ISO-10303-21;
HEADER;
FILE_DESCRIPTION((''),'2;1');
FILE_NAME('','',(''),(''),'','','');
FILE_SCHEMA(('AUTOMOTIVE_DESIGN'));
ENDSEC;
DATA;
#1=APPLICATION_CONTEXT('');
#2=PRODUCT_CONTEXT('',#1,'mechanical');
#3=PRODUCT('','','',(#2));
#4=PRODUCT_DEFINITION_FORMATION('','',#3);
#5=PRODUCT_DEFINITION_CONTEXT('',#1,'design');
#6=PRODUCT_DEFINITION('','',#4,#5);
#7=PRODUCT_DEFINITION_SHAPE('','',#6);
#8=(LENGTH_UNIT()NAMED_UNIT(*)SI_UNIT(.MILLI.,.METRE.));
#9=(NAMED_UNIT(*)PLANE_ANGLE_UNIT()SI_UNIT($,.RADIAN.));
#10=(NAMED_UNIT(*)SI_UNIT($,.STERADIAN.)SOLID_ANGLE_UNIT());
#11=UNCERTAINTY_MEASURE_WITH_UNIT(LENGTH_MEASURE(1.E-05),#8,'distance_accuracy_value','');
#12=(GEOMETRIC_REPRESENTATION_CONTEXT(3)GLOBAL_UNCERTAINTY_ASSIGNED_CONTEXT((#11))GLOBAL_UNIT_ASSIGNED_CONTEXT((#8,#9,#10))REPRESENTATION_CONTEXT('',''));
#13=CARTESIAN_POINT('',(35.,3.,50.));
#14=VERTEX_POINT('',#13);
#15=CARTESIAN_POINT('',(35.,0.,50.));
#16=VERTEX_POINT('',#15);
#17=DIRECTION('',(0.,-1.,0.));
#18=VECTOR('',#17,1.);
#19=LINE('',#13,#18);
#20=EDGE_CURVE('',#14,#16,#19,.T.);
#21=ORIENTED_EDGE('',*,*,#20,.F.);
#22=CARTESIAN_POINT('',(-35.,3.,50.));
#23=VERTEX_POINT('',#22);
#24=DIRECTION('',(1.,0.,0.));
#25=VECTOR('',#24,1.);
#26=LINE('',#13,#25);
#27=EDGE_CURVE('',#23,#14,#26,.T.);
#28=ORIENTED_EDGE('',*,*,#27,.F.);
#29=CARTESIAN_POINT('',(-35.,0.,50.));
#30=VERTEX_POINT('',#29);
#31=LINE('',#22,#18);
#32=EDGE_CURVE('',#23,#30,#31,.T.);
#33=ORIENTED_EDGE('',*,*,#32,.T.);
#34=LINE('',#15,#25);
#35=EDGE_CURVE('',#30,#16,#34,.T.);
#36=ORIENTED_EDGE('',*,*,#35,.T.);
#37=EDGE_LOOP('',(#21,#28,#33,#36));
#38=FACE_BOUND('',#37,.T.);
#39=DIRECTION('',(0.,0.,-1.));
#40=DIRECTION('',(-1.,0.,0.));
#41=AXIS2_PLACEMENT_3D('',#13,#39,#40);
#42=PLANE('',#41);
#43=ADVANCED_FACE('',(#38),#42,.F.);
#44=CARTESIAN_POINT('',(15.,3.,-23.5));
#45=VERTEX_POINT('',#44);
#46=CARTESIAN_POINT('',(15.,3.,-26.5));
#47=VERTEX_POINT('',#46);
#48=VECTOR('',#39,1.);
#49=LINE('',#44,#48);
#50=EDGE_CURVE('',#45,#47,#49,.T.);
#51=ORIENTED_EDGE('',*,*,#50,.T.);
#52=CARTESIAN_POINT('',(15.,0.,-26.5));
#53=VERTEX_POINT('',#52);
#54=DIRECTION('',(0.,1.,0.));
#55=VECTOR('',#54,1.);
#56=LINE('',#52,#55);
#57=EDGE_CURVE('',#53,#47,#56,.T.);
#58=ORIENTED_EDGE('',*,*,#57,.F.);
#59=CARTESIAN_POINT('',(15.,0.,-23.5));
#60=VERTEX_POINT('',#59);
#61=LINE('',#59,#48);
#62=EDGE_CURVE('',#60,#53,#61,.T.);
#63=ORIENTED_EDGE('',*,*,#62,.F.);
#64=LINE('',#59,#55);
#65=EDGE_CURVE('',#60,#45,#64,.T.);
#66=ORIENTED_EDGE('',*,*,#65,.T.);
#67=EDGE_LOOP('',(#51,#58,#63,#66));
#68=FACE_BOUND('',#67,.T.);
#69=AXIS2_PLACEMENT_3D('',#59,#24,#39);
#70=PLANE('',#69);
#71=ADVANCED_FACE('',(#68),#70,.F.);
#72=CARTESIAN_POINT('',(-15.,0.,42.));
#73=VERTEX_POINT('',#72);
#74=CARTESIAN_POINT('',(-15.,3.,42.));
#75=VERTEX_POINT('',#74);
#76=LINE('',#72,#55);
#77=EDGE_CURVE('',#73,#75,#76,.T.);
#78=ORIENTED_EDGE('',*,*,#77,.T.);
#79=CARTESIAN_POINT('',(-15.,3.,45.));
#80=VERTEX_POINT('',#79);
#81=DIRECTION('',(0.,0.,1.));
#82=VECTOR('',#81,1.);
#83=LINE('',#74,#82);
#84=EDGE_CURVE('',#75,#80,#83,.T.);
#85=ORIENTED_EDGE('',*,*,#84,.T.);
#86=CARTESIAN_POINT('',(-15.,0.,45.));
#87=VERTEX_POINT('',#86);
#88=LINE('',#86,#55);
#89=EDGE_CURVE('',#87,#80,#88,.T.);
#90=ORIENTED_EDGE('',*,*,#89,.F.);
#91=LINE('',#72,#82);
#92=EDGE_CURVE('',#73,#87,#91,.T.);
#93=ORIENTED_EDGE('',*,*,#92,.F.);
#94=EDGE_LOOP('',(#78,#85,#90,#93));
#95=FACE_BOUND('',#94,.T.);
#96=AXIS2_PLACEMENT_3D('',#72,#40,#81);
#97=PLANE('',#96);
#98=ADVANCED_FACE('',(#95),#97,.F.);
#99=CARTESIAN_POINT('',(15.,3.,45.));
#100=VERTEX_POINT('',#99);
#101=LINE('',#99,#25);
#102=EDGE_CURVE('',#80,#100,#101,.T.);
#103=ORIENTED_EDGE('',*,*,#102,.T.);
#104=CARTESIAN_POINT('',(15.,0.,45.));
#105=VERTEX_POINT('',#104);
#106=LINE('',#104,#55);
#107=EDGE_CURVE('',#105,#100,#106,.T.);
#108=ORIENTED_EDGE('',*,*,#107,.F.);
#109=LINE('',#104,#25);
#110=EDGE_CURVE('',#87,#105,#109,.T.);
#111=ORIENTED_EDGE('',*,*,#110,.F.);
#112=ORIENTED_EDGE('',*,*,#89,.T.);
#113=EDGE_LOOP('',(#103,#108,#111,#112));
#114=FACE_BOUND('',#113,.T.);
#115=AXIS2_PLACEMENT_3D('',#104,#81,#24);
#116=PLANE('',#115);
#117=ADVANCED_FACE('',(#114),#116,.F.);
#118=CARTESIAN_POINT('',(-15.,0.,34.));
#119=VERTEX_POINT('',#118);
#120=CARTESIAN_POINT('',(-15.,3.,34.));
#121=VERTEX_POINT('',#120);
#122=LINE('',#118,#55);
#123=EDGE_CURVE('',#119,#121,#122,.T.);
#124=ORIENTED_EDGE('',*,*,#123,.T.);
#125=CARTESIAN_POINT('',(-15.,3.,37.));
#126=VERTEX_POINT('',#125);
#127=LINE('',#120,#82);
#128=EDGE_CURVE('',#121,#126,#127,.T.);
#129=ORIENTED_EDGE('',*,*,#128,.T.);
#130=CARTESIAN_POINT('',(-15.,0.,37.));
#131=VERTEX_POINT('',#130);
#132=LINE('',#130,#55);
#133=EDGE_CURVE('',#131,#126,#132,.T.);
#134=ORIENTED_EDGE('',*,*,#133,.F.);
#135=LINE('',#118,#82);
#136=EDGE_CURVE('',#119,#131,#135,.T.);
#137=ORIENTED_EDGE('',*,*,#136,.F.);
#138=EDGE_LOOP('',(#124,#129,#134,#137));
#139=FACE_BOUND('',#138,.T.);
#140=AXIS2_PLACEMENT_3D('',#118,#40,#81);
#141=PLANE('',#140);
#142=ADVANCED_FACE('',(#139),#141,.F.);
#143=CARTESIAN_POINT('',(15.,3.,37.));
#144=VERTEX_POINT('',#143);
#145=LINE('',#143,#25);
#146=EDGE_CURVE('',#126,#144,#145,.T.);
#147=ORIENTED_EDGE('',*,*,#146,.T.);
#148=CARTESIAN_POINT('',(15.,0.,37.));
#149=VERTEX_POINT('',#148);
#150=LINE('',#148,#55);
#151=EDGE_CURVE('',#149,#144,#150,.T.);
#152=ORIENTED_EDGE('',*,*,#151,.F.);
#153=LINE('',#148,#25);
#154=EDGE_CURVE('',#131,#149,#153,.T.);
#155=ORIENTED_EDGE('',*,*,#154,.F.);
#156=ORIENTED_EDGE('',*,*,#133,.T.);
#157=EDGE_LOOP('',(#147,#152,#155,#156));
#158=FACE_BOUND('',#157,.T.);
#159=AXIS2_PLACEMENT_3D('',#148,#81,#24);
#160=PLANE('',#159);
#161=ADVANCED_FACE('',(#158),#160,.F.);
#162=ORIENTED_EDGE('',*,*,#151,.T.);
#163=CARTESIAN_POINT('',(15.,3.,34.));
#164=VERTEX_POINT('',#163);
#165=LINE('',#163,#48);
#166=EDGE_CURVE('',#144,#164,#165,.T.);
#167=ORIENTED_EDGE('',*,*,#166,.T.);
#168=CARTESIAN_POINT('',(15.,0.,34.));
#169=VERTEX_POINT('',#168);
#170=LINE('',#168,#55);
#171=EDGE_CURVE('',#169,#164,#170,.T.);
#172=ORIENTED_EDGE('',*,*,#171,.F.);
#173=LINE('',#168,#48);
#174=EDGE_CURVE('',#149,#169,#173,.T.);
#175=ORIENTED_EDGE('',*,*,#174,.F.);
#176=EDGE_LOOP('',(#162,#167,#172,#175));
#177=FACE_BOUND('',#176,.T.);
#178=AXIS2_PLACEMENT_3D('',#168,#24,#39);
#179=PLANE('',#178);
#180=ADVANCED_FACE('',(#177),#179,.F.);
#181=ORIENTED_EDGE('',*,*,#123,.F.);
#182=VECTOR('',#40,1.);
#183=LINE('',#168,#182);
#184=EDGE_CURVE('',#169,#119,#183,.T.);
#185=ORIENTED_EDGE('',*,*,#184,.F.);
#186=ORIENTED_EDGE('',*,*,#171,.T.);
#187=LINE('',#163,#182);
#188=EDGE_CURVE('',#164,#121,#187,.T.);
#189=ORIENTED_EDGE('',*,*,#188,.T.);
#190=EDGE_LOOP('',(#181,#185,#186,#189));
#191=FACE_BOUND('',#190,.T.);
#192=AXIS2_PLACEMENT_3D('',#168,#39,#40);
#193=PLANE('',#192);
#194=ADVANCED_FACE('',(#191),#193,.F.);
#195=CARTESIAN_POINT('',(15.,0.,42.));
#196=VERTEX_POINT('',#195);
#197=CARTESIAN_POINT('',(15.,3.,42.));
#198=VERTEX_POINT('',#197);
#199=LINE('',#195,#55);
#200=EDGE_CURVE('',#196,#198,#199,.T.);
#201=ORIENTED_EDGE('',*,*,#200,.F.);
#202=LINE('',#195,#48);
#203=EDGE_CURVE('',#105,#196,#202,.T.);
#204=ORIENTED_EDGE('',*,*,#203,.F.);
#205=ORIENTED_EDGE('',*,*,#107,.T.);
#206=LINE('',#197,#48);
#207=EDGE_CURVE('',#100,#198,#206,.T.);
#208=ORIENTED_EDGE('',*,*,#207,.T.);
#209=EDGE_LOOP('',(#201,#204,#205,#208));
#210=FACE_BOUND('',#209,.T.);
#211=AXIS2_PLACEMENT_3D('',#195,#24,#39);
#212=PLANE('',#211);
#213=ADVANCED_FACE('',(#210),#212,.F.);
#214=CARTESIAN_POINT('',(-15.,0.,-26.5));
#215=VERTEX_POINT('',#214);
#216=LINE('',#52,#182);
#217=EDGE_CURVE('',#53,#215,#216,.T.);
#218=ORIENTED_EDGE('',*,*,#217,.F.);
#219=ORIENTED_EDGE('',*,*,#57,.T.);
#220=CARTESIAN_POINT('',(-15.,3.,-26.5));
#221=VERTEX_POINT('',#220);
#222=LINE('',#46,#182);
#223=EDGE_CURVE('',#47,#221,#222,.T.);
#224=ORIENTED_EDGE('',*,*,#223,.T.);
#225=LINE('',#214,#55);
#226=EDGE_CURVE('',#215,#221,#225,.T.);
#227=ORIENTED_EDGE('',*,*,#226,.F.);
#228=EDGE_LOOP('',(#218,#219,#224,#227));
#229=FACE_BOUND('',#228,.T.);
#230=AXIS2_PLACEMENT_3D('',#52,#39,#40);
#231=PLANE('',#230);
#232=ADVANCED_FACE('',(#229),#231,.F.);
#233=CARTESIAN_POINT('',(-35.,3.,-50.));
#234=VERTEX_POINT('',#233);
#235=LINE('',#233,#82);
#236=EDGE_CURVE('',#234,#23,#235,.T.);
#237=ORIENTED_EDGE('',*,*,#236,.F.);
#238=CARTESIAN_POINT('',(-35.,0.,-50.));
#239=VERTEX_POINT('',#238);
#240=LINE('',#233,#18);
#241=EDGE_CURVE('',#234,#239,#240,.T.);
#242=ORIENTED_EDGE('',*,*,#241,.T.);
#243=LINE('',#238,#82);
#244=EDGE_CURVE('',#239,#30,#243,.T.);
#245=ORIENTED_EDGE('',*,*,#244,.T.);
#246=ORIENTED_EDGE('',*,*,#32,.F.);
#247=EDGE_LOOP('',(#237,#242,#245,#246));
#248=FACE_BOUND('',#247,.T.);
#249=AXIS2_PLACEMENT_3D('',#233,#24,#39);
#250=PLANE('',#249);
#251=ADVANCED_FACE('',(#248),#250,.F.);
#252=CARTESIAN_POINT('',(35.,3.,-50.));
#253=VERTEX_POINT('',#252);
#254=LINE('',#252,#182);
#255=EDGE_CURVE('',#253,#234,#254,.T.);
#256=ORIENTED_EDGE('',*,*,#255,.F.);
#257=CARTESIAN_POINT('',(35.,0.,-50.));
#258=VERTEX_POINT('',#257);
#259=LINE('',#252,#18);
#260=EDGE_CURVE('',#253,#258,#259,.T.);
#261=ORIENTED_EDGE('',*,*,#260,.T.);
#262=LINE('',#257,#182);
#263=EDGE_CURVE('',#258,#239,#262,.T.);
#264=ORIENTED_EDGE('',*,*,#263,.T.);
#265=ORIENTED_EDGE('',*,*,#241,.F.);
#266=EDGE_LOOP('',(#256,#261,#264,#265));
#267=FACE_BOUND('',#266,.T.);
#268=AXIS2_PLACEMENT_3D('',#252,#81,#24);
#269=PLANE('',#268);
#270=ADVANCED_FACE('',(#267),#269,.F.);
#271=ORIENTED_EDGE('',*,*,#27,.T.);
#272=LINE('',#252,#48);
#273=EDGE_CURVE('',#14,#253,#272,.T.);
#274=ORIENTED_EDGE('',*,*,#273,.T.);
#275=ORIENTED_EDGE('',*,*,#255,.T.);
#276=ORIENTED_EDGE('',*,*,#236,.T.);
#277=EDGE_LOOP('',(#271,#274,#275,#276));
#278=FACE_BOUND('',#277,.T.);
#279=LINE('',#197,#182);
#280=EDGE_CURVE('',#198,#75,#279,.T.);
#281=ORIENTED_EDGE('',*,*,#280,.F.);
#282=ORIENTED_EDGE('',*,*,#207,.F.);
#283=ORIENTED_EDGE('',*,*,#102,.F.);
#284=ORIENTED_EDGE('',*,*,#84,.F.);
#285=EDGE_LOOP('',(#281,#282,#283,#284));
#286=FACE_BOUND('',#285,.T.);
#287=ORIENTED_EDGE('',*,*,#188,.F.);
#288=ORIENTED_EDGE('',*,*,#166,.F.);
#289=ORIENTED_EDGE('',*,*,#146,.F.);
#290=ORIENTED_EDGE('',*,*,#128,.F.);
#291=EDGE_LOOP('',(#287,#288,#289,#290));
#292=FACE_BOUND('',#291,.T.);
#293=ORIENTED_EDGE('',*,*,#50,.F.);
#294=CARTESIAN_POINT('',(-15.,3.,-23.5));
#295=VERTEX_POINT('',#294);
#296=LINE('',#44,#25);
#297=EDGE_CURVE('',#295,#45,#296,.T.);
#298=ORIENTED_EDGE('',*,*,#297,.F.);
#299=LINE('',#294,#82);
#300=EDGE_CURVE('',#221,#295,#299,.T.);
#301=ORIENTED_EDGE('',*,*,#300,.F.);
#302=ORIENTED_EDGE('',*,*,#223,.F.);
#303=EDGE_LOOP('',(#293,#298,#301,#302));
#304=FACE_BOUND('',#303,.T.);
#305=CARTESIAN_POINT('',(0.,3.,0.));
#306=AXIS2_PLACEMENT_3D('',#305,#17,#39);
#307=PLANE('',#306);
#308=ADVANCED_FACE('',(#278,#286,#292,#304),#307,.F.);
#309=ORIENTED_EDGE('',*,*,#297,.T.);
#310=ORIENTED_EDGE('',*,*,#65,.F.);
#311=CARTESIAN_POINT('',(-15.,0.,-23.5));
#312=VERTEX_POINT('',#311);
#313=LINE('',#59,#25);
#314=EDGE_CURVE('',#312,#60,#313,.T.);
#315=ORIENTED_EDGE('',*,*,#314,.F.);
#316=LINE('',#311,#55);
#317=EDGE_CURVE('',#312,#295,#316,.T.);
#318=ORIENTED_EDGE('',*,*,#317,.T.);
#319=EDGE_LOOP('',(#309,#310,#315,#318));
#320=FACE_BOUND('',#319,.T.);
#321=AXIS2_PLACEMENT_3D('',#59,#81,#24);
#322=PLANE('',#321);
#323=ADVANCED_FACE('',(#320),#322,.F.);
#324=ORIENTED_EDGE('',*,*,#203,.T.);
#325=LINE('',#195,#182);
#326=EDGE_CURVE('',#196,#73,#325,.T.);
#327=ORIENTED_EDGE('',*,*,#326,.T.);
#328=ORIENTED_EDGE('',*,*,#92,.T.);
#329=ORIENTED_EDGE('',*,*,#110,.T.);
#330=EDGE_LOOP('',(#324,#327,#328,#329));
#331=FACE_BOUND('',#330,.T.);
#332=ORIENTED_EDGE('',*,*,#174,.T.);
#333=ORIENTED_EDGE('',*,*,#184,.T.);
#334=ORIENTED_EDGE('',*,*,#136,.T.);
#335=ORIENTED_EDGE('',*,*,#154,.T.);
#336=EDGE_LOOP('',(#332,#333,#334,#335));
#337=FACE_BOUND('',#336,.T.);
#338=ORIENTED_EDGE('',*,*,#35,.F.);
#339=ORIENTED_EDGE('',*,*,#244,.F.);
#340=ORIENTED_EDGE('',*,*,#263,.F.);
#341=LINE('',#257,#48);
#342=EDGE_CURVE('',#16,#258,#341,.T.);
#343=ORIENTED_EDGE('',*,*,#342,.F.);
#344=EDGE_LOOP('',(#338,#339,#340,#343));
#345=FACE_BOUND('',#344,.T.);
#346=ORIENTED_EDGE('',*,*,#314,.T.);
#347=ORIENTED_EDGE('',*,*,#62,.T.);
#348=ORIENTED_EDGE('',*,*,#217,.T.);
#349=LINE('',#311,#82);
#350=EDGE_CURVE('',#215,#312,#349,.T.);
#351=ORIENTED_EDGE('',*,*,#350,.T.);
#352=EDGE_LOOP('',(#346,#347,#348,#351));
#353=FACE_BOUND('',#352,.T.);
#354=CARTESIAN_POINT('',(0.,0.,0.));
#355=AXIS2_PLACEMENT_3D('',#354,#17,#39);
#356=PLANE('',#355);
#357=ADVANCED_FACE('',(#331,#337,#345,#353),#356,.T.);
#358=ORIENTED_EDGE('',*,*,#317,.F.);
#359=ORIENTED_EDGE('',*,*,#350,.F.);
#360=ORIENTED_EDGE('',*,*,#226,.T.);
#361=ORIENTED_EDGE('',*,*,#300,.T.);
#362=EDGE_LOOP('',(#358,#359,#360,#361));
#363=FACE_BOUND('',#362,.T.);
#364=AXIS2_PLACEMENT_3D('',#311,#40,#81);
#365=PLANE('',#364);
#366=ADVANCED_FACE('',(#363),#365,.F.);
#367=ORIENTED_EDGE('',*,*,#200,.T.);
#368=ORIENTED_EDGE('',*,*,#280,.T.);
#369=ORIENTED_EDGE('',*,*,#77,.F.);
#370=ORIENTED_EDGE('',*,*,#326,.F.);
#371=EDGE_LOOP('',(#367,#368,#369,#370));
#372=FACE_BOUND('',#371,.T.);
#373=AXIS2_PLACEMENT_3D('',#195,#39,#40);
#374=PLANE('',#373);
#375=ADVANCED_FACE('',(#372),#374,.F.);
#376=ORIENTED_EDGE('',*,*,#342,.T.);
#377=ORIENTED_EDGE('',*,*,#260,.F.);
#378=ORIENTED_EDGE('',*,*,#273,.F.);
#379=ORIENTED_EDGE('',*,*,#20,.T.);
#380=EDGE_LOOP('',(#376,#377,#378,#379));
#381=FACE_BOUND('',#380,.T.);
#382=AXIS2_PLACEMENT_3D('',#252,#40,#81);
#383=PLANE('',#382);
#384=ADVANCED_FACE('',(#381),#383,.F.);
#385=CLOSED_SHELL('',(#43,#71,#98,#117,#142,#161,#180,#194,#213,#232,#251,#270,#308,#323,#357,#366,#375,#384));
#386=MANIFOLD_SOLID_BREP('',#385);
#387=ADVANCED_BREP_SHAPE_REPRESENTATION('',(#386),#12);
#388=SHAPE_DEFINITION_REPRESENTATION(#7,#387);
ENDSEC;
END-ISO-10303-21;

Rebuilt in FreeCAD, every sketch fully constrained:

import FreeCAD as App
import Part
import Sketcher
Q = App.Units.Quantity

doc = App.newDocument("Part")
body = doc.addObject("PartDesign::Body", "Body")

# Sketch on XZ plane
sketch1 = body.newObject("Sketcher::SketchObject", "Sketch")
sketch1.AttachmentSupport = (doc.getObject("XZ_Plane"), [""])
sketch1.MapMode = "FlatFace"
sketch1.addGeometry([
    Part.LineSegment(App.Vector(-35, -50, 0), App.Vector(-35, 50, 0)),
    Part.LineSegment(App.Vector(-35, 50, 0), App.Vector(35, 50, 0)),
    Part.LineSegment(App.Vector(35, 50, 0), App.Vector(35, -50, 0)),
    Part.LineSegment(App.Vector(35, -50, 0), App.Vector(-35, -50, 0)),
], False)
sketch1.addConstraint([
    Sketcher.Constraint("Coincident", 0, 2, 1, 1),
    Sketcher.Constraint("Coincident", 1, 2, 2, 1),
    Sketcher.Constraint("Coincident", 2, 2, 3, 1),
    Sketcher.Constraint("Coincident", 3, 2, 0, 1),
    Sketcher.Constraint("Vertical", 0),
    Sketcher.Constraint("Horizontal", 1),
    Sketcher.Constraint("Vertical", 2),
    Sketcher.Constraint("Horizontal", 3),
    Sketcher.Constraint("Symmetric", 0, 2, 2, 2, -1, 1),
    Sketcher.Constraint("DistanceX", 1, 1, 1, 2, Q("70 mm")),
    Sketcher.Constraint("DistanceY", 0, 1, 0, 2, Q("100 mm")),
])
pad1 = body.newObject("PartDesign::Pad", "Pad")
pad1.Profile = sketch1
pad1.Length = 3
pad1.Reversed = True

# Sketch on XZ plane
sketch2 = body.newObject("Sketcher::SketchObject", "Sketch001")
sketch2.AttachmentSupport = (doc.getObject("XZ_Plane"), [""])
sketch2.MapMode = "FlatFace"
sketch2.AttachmentOffset = App.Placement(App.Vector(0, 0, -3), App.Rotation())
sketch2.addGeometry([
    Part.LineSegment(App.Vector(-15, 42, 0), App.Vector(-15, 45, 0)),  # 0
    Part.LineSegment(App.Vector(-15, 45, 0), App.Vector(15, 45, 0)),  # 1
    Part.LineSegment(App.Vector(15, 45, 0), App.Vector(15, 42, 0)),  # 2
    Part.LineSegment(App.Vector(15, 42, 0), App.Vector(-15, 42, 0)),  # 3
    Part.LineSegment(App.Vector(-15, 34, 0), App.Vector(-15, 37, 0)),  # 4
    Part.LineSegment(App.Vector(-15, 37, 0), App.Vector(15, 37, 0)),  # 5
    Part.LineSegment(App.Vector(15, 37, 0), App.Vector(15, 34, 0)),  # 6
    Part.LineSegment(App.Vector(15, 34, 0), App.Vector(-15, 34, 0)),  # 7
    Part.LineSegment(App.Vector(-15, -26.5, 0), App.Vector(-15, -23.5, 0)),  # 8
    Part.LineSegment(App.Vector(-15, -23.5, 0), App.Vector(15, -23.5, 0)),  # 9
    Part.LineSegment(App.Vector(15, -23.5, 0), App.Vector(15, -26.5, 0)),  # 10
    Part.LineSegment(App.Vector(15, -26.5, 0), App.Vector(-15, -26.5, 0)),  # 11
], False)
sketch2.addConstraint([
    Sketcher.Constraint("Coincident", 0, 2, 1, 1),
    Sketcher.Constraint("Coincident", 1, 2, 2, 1),
    Sketcher.Constraint("Coincident", 2, 2, 3, 1),
    Sketcher.Constraint("Coincident", 3, 2, 0, 1),
    Sketcher.Constraint("Coincident", 4, 2, 5, 1),
    Sketcher.Constraint("Coincident", 5, 2, 6, 1),
    Sketcher.Constraint("Coincident", 6, 2, 7, 1),
    Sketcher.Constraint("Coincident", 7, 2, 4, 1),
    Sketcher.Constraint("Coincident", 8, 2, 9, 1),
    Sketcher.Constraint("Coincident", 9, 2, 10, 1),
    Sketcher.Constraint("Coincident", 10, 2, 11, 1),
    Sketcher.Constraint("Coincident", 11, 2, 8, 1),
    Sketcher.Constraint("Vertical", 0),
    Sketcher.Constraint("Horizontal", 1),
    Sketcher.Constraint("Vertical", 2),
    Sketcher.Constraint("Horizontal", 3),
    Sketcher.Constraint("Vertical", 4),
    Sketcher.Constraint("Horizontal", 5),
    Sketcher.Constraint("Vertical", 6),
    Sketcher.Constraint("Horizontal", 7),
    Sketcher.Constraint("Vertical", 8),
    Sketcher.Constraint("Horizontal", 9),
    Sketcher.Constraint("Vertical", 10),
    Sketcher.Constraint("Horizontal", 11),
    Sketcher.Constraint("Vertical", 3, 2, 4, 2),
    Sketcher.Constraint("Vertical", 2, 2, 5, 2),
    Sketcher.Constraint("Vertical", 7, 2, 8, 2),
    Sketcher.Constraint("Vertical", 6, 2, 9, 2),
    Sketcher.Constraint("Equal", 2, 4),
    Sketcher.Constraint("Equal", 6, 8),
    Sketcher.Constraint("DistanceX", 1, 1, 1, 2, Q("30 mm")),
    Sketcher.Constraint("DistanceY", 0, 1, 0, 2, Q("3 mm")),
    Sketcher.Constraint("DistanceX", 0, 2, -1, 1, Q("15 mm")),
    Sketcher.Constraint("DistanceY", -1, 1, 0, 2, Q("45 mm")),
    Sketcher.Constraint("DistanceY", -1, 1, 4, 2, Q("37 mm")),
    Sketcher.Constraint("DistanceY", 8, 2, -1, 1, Q("23.5 mm")),
])
pocket1 = body.newObject("PartDesign::Pocket", "Pocket")
pocket1.Profile = sketch2
pocket1.Type = "ThroughAll"
pocket1.Reversed = True

doc.recompute()
